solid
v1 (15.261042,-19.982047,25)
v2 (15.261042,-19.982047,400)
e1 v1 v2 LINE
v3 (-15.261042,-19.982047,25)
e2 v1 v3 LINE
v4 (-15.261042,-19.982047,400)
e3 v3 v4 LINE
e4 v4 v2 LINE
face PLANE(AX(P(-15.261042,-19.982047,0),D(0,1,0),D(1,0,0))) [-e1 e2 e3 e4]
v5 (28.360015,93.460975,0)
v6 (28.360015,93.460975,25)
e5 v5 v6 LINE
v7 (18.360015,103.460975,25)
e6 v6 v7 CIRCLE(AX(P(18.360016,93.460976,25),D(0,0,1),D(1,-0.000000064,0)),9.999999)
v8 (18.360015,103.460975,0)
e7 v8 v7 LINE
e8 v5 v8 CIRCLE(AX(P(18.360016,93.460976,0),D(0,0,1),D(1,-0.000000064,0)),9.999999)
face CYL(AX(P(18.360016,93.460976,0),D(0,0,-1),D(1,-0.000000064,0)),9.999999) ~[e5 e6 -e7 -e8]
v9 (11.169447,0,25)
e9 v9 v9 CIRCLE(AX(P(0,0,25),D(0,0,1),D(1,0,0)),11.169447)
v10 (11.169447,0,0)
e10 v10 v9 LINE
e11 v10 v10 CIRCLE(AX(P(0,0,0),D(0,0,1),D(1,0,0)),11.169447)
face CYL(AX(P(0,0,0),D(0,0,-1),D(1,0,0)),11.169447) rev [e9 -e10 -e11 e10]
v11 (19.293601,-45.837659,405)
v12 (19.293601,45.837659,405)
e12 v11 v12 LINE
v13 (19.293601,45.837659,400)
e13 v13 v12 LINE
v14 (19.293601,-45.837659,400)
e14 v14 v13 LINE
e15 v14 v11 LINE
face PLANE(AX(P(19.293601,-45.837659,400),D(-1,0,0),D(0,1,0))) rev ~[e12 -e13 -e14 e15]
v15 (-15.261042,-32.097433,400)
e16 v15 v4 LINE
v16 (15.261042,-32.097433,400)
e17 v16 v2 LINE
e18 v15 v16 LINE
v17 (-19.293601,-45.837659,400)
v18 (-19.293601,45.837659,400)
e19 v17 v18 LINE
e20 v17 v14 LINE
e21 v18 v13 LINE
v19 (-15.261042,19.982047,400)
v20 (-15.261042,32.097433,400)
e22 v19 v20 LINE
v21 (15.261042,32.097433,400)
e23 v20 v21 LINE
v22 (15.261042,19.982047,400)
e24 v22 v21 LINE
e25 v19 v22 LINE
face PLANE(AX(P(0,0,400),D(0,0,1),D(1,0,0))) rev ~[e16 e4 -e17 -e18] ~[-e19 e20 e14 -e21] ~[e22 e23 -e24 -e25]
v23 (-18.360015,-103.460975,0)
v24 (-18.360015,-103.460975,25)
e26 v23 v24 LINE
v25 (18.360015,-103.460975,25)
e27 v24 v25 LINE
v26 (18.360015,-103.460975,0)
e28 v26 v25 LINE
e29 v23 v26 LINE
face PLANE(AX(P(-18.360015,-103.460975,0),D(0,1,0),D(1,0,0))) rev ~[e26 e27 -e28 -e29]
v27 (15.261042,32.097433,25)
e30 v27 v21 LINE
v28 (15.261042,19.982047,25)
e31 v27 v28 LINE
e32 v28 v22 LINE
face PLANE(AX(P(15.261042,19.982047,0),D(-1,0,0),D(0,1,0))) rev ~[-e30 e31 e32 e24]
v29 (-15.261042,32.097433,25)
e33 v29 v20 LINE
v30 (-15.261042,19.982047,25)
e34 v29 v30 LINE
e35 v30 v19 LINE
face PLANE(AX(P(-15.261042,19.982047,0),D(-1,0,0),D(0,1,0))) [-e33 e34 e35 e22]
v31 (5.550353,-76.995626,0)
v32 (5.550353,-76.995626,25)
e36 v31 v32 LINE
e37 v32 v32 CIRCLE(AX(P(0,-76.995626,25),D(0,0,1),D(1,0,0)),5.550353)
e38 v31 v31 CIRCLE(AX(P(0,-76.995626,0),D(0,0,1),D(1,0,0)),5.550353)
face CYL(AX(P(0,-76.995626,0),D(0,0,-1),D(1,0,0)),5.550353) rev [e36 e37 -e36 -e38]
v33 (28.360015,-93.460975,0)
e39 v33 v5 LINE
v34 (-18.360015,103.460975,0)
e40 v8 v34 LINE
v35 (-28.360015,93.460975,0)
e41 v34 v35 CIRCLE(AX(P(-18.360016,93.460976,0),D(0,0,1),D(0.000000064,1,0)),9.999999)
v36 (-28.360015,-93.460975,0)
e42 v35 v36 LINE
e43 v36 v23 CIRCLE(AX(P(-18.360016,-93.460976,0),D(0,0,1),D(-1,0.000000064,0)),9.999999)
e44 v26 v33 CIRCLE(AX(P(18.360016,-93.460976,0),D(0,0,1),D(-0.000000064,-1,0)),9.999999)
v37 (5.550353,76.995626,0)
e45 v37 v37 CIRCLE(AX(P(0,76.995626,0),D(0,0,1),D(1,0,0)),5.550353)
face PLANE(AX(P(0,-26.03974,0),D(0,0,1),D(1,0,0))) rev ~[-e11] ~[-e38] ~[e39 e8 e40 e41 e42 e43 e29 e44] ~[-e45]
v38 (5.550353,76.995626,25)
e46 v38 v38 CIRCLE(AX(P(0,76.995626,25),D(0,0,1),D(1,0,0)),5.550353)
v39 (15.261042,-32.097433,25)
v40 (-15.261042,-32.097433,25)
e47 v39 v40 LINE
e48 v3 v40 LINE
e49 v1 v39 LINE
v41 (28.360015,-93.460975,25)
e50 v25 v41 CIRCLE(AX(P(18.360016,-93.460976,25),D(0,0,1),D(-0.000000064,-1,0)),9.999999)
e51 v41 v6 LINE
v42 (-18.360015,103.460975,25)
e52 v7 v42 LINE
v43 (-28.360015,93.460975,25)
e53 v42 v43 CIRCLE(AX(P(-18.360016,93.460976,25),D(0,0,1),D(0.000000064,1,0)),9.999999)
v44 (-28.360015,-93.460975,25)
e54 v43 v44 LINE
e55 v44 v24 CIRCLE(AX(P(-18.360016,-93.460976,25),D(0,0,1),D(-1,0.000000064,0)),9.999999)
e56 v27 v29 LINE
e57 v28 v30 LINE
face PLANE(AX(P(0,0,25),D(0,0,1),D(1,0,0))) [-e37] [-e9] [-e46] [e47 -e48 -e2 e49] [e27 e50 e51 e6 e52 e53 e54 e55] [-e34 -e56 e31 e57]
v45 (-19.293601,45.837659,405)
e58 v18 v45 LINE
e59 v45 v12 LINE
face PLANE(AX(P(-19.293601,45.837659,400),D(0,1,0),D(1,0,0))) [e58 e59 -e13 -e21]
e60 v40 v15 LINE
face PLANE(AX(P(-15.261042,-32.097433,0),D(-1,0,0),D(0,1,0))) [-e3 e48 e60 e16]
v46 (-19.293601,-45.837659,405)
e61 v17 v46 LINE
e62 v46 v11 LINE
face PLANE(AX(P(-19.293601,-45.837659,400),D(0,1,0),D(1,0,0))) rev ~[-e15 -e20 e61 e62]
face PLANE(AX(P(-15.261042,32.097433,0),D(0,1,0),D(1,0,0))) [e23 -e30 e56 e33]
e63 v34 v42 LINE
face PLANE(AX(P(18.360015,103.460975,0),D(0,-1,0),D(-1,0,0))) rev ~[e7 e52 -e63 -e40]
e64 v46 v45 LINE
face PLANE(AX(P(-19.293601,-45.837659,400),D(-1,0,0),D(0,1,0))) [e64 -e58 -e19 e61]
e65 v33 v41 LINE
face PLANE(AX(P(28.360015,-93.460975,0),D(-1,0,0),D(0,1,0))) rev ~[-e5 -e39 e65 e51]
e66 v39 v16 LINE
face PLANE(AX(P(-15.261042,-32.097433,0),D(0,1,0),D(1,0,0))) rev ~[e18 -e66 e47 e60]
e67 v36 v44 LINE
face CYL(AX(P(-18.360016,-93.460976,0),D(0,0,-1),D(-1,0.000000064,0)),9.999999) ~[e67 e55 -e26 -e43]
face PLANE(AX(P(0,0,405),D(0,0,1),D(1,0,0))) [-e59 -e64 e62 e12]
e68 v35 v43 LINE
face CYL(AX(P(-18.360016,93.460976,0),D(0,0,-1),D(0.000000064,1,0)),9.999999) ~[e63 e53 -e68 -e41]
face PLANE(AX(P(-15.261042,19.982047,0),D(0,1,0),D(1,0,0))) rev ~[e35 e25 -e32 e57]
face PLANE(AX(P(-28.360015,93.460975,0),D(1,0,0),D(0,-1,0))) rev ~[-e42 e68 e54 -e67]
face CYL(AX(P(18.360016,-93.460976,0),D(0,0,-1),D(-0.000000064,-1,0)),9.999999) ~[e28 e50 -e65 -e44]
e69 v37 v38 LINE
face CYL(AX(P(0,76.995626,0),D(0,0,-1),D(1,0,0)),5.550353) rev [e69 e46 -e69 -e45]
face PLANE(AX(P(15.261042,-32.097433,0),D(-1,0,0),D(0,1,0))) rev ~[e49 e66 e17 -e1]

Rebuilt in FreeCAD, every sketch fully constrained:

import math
import FreeCAD as App
import Part
import Sketcher

doc = App.newDocument("Part")
params = doc.addObject("Spreadsheet::Sheet", "Params")
for row, (alias, value) in enumerate([
    ("sketch1_radius", "9.999999 mm"),
    ("pad1_length", "25 mm"),
    ("pad2_length", "400 mm"),
    ("pad3_length", "5 mm"),
], start=1):
    params.set(f"A{row}", alias)
    params.set(f"B{row}", "=" + value)
    params.setAlias(f"B{row}", alias)

body = doc.addObject("PartDesign::Body", "Body")

# Sketch on XY plane
sketch1 = body.newObject("Sketcher::SketchObject", "Sketch")
sketch1.AttachmentSupport = (doc.getObject("XY_Plane"), [""])
sketch1.MapMode = "FlatFace"
sketch1.addGeometry([
    Part.ArcOfCircle(Part.Circle(App.Vector(18, 93, 0), App.Vector(0, 0, 1), 10), math.radians(0), math.radians(90)),  # 0
    Part.LineSegment(App.Vector(18, 103, 0), App.Vector(-18, 103, 0)),  # 1
    Part.ArcOfCircle(Part.Circle(App.Vector(-18, 93, 0), App.Vector(0, 0, 1), 10), math.radians(90), math.radians(180)),  # 2
    Part.LineSegment(App.Vector(-28, 93, 0), App.Vector(-28, -93, 0)),  # 3
    Part.ArcOfCircle(Part.Circle(App.Vector(-18, -93, 0), App.Vector(0, 0, 1), 10), math.radians(180), math.radians(270)),  # 4
    Part.LineSegment(App.Vector(-18, -103, 0), App.Vector(18, -103, 0)),  # 5
    Part.ArcOfCircle(Part.Circle(App.Vector(18, -93, 0), App.Vector(0, 0, 1), 10), math.radians(-90), math.radians(0)),  # 6
    Part.LineSegment(App.Vector(28, -93, 0), App.Vector(28, 93, 0)),  # 7
    Part.Circle(App.Vector(0, -77, 0), App.Vector(0, 0, 1), 6),  # 8
    Part.Circle(App.Vector(0, 0, 0), App.Vector(0, 0, 1), 11),  # 9
    Part.Circle(App.Vector(0, 77, 0), App.Vector(0, 0, 1), 6),  # 10
], False)
sketch1.addConstraint([
    Sketcher.Constraint("Tangent", 0, 2, 1, 1),
    Sketcher.Constraint("Tangent", 1, 2, 2, 1),
    Sketcher.Constraint("Tangent", 2, 2, 3, 1),
    Sketcher.Constraint("Tangent", 3, 2, 4, 1),
    Sketcher.Constraint("Tangent", 4, 2, 5, 1),
    Sketcher.Constraint("Tangent", 5, 2, 6, 1),
    Sketcher.Constraint("Tangent", 6, 2, 7, 1),
    Sketcher.Constraint("Tangent", 7, 2, 0, 1),
    Sketcher.Constraint("Horizontal", 1),
    Sketcher.Constraint("Vertical", 3),
    Sketcher.Constraint("Horizontal", 5),
    Sketcher.Constraint("Vertical", 7),
    Sketcher.Constraint("Coincident", 9, 3, -1, 1),
    Sketcher.Constraint("Equal", 0, 2),
    Sketcher.Constraint("Equal", 2, 4),
    Sketcher.Constraint("Equal", 4, 6),
    Sketcher.Constraint("Equal", 8, 10),
    Sketcher.Constraint("Symmetric", 0, 3, 4, 3, -1, 1),
    Sketcher.Constraint("Symmetric", 8, 3, 10, 3, -1, 1),
    Sketcher.Constraint("PointOnObject", 8, 3, -2),
    Sketcher.Constraint("Radius", 0, 9.999999),
    Sketcher.Constraint("Diameter", 8, 11.100706),
    Sketcher.Constraint("Diameter", 9, 22.338894),
    Sketcher.Constraint("DistanceX", 1, 2, 1, 1, 36.72003),
    Sketcher.Constraint("DistanceY", 3, 2, 3, 1, 186.92195),
    Sketcher.Constraint("DistanceY", 8, 3, 0, 3, 170.456602),
])
sketch1.setExpression("Constraints[20]", "Params.sketch1_radius")
pad1 = body.newObject("PartDesign::Pad", "Pad")
pad1.Profile = sketch1
pad1.setExpression("Length", "Params.pad1_length")

# Sketch on XY plane
sketch2 = body.newObject("Sketcher::SketchObject", "Sketch001")
sketch2.AttachmentSupport = (doc.getObject("XY_Plane"), [""])
sketch2.MapMode = "FlatFace"
sketch2.addGeometry([
    Part.LineSegment(App.Vector(-15, -20, 0), App.Vector(-15, -32, 0)),  # 0
    Part.LineSegment(App.Vector(-15, -32, 0), App.Vector(15, -32, 0)),  # 1
    Part.LineSegment(App.Vector(15, -32, 0), App.Vector(15, -20, 0)),  # 2
    Part.LineSegment(App.Vector(15, -20, 0), App.Vector(-15, -20, 0)),  # 3
    Part.LineSegment(App.Vector(-15, 32, 0), App.Vector(-15, 20, 0)),  # 4
    Part.LineSegment(App.Vector(-15, 20, 0), App.Vector(15, 20, 0)),  # 5
    Part.LineSegment(App.Vector(15, 20, 0), App.Vector(15, 32, 0)),  # 6
    Part.LineSegment(App.Vector(15, 32, 0), App.Vector(-15, 32, 0)),  # 7
], False)
sketch2.addConstraint([
    Sketcher.Constraint("Coincident", 0, 2, 1, 1),
    Sketcher.Constraint("Coincident", 1, 2, 2, 1),
    Sketcher.Constraint("Coincident", 2, 2, 3, 1),
    Sketcher.Constraint("Coincident", 3, 2, 0, 1),
    Sketcher.Constraint("Coincident", 4, 2, 5, 1),
    Sketcher.Constraint("Coincident", 5, 2, 6, 1),
    Sketcher.Constraint("Coincident", 6, 2, 7, 1),
    Sketcher.Constraint("Coincident", 7, 2, 4, 1),
    Sketcher.Constraint("Vertical", 0),
    Sketcher.Constraint("Horizontal", 1),
    Sketcher.Constraint("Vertical", 2),
    Sketcher.Constraint("Horizontal", 3),
    Sketcher.Constraint("Vertical", 4),
    Sketcher.Constraint("Horizontal", 5),
    Sketcher.Constraint("Vertical", 6),
    Sketcher.Constraint("Horizontal", 7),
    Sketcher.Constraint("Symmetric", 2, 2, 4, 2, -1, 1),
    Sketcher.Constraint("Symmetric", 0, 2, 6, 2, -1, 1),
    Sketcher.Constraint("Vertical", 3, 2, 4, 2),
    Sketcher.Constraint("DistanceX", 1, 1, 1, 2, 30.522084),
    Sketcher.Constraint("DistanceY", 0, 2, 0, 1, 12.115386),
    Sketcher.Constraint("DistanceY", 0, 2, 4, 2, 52.07948),
])
pad2 = body.newObject("PartDesign::Pad", "Pad001")
pad2.Profile = sketch2
pad2.setExpression("Length", "Params.pad2_length")

# Sketch on XY plane
sketch3 = body.newObject("Sketcher::SketchObject", "Sketch002")
sketch3.AttachmentSupport = (doc.getObject("XY_Plane"), [""])
sketch3.MapMode = "FlatFace"
sketch3.AttachmentOffset = App.Placement(App.Vector(0, 0, 400), App.Rotation())
sketch3.addGeometry([
    Part.LineSegment(App.Vector(-19, 46, 0), App.Vector(-19, -46, 0)),
    Part.LineSegment(App.Vector(-19, -46, 0), App.Vector(19, -46, 0)),
    Part.LineSegment(App.Vector(19, -46, 0), App.Vector(19, 46, 0)),
    Part.LineSegment(App.Vector(19, 46, 0), App.Vector(-19, 46, 0)),
], False)
sketch3.addConstraint([
    Sketcher.Constraint("Coincident", 0, 2, 1, 1),
    Sketcher.Constraint("Coincident", 1, 2, 2, 1),
    Sketcher.Constraint("Coincident", 2, 2, 3, 1),
    Sketcher.Constraint("Coincident", 3, 2, 0, 1),
    Sketcher.Constraint("Vertical", 0),
    Sketcher.Constraint("Horizontal", 1),
    Sketcher.Constraint("Vertical", 2),
    Sketcher.Constraint("Horizontal", 3),
    Sketcher.Constraint("Symmetric", 0, 2, 2, 2, -1, 1),
    Sketcher.Constraint("DistanceX", 1, 1, 1, 2, 38.587202),
    Sketcher.Constraint("DistanceY", 0, 2, 0, 1, 91.675318),
])
pad3 = body.newObject("PartDesign::Pad", "Pad002")
pad3.Profile = sketch3
pad3.setExpression("Length", "Params.pad3_length")

doc.recompute()
